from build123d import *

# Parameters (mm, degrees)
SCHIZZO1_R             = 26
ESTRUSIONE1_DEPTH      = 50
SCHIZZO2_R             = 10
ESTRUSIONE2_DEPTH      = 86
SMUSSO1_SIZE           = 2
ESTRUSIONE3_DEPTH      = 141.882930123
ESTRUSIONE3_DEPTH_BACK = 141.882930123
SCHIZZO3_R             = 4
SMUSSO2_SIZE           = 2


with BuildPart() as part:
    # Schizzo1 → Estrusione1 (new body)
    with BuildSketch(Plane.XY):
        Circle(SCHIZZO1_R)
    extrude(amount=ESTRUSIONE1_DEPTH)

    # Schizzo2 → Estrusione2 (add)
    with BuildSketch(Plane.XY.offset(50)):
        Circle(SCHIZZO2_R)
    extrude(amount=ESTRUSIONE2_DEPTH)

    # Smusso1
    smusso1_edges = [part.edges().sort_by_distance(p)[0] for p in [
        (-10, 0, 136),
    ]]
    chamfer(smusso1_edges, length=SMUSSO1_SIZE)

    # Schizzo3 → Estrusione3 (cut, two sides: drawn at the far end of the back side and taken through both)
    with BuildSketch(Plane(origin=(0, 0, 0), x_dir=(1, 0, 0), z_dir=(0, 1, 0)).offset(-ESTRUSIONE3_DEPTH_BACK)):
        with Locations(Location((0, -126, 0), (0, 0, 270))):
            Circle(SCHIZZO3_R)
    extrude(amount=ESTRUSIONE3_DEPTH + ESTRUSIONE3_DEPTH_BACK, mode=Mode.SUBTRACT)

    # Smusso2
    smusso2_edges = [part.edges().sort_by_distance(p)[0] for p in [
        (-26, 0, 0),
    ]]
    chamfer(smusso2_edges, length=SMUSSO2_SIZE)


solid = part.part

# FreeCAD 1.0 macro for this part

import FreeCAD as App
import Part
import Sketcher

V = App.Vector
Q = App.Units.Quantity


def edges_at(feature, points):
    """Names of the edges that pass closest to the given points."""
    edges = feature.Shape.Edges
    near = lambda p: min(range(len(edges)), key=lambda i: edges[i].distToShape(Part.Vertex(*p))[0])
    return sorted({f"Edge{near(p) + 1}" for p in points})

doc = App.newDocument("Part")
body = doc.addObject("PartDesign::Body", "Body")

# Sketch on XY plane
sketch1 = doc.addObject("Sketcher::SketchObject", "Sketch")
body.addObject(sketch1)
sketch1.AttachmentSupport = (doc.XY_Plane, [""])
sketch1.MapMode = "FlatFace"
sketch1.addGeometry(Part.Circle(V(0, 0, 0), V(0, 0, 1), 26), False)
sketch1.addConstraint([
    Sketcher.Constraint("Coincident", 0, 3, -1, 1),
    Sketcher.Constraint("Diameter", 0, Q("52 mm")),
])
pad1 = doc.addObject("PartDesign::Pad", "Pad")
body.addObject(pad1)
pad1.Profile = sketch1
pad1.Length = 50

# Sketch on XY plane
sketch2 = doc.addObject("Sketcher::SketchObject", "Sketch001")
body.addObject(sketch2)
sketch2.AttachmentSupport = (doc.XY_Plane, [""])
sketch2.MapMode = "FlatFace"
sketch2.AttachmentOffset = App.Placement(V(0, 0, 50), App.Rotation())
sketch2.addGeometry(Part.Circle(V(0, 0, 0), V(0, 0, 1), 10), False)
sketch2.addConstraint([
    Sketcher.Constraint("Coincident", 0, 3, -1, 1),
    Sketcher.Constraint("Diameter", 0, Q("20 mm")),
])
pad2 = doc.addObject("PartDesign::Pad", "Pad001")
body.addObject(pad2)
pad2.Profile = sketch2
pad2.Length = 86
doc.recompute()

chamfer = doc.addObject("PartDesign::Chamfer", "Chamfer")
body.addObject(chamfer)
chamfer.Base = (pad2, edges_at(pad2, [(-10, 0, 136)]))
chamfer.Size = 2

# Sketch on XZ plane
sketch3 = doc.addObject("Sketcher::SketchObject", "Sketch002")
body.addObject(sketch3)
sketch3.AttachmentSupport = (doc.XZ_Plane, [""])
sketch3.MapMode = "FlatFace"
sketch3.addGeometry(Part.Circle(V(0, 126, 0), V(0, 0, 1), 4), False)
sketch3.addConstraint([
    Sketcher.Constraint("PointOnObject", 0, 3, -2),
    Sketcher.Constraint("Diameter", 0, Q("8 mm")),
    Sketcher.Constraint("DistanceY", -1, 1, 0, 3, Q("126 mm")),
])
pocket1 = doc.addObject("PartDesign::Pocket", "Pocket")
body.addObject(pocket1)
pocket1.Profile = sketch3
pocket1.Type = "ThroughAll"
pocket1.Midplane = True
doc.recompute()

chamfer2 = doc.addObject("PartDesign::Chamfer", "Chamfer001")
body.addObject(chamfer2)
chamfer2.Base = (pocket1, edges_at(pocket1, [(-26, 0, 0)]))
chamfer2.Size = 2

doc.recompute()
